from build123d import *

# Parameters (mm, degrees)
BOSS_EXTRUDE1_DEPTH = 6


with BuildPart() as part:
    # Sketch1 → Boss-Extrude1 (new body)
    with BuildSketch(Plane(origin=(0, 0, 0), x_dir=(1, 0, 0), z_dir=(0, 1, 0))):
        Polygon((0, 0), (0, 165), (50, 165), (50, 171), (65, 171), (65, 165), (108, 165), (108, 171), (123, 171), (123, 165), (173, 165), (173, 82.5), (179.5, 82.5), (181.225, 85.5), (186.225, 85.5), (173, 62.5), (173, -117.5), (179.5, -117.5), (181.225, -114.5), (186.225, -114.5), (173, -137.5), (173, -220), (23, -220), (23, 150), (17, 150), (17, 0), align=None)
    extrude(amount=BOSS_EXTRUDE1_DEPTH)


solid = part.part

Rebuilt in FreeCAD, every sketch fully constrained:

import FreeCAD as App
import Part
import Sketcher
Q = App.Units.Quantity

doc = App.newDocument("Part")
params = doc.addObject("Spreadsheet::Sheet", "Params")
for row, (alias, value) in enumerate([
    ("sketch1_width", "17 mm"),
    ("sketch1_width2", "6 mm"),
    ("sketch1_width3", "150 mm"),
    ("sketch1_width4", "5 mm"),
    ("sketch1_width5", "50 mm"),
    ("pad1_length", "6 mm"),
], start=1):
    params.set(f"A{row}", alias)
    params.set(f"B{row}", "=" + value)
    params.setAlias(f"B{row}", alias)

body = doc.addObject("PartDesign::Body", "Body")

sketch1 = body.newObject("Sketcher::SketchObject", "Sketch")
sketch1.AttachmentSupport = (doc.getObject("XZ_Plane"), [""])
sketch1.MapMode = "FlatFace"
sketch1.addGeometry([
    Part.LineSegment(App.Vector(0, -165, 0), App.Vector(0, 0, 0)),
    Part.LineSegment(App.Vector(0, 0, 0), App.Vector(17, 0, 0)),
    Part.LineSegment(App.Vector(17, 0, 0), App.Vector(17, -150, 0)),
    Part.LineSegment(App.Vector(17, -150, 0), App.Vector(23, -150, 0)),
    Part.LineSegment(App.Vector(23, -150, 0), App.Vector(23, 220, 0)),
    Part.LineSegment(App.Vector(23, 220, 0), App.Vector(173, 220, 0)),
    Part.LineSegment(App.Vector(173, 220, 0), App.Vector(173, 137.5, 0)),
    Part.LineSegment(App.Vector(173, 137.5, 0), App.Vector(186.225, 114.5, 0)),
    Part.LineSegment(App.Vector(186.225, 114.5, 0), App.Vector(181.225, 114.5, 0)),
    Part.LineSegment(App.Vector(181.225, 114.5, 0), App.Vector(179.5, 117.5, 0)),
    Part.LineSegment(App.Vector(179.5, 117.5, 0), App.Vector(173, 117.5, 0)),
    Part.LineSegment(App.Vector(173, 117.5, 0), App.Vector(173, -62.5, 0)),
    Part.LineSegment(App.Vector(173, -62.5, 0), App.Vector(186.225, -85.5, 0)),
    Part.LineSegment(App.Vector(186.225, -85.5, 0), App.Vector(181.225, -85.5, 0)),
    Part.LineSegment(App.Vector(181.225, -85.5, 0), App.Vector(179.5, -82.5, 0)),
    Part.LineSegment(App.Vector(179.5, -82.5, 0), App.Vector(173, -82.5, 0)),
    Part.LineSegment(App.Vector(173, -82.5, 0), App.Vector(173, -165, 0)),
    Part.LineSegment(App.Vector(173, -165, 0), App.Vector(123, -165, 0)),
    Part.LineSegment(App.Vector(123, -165, 0), App.Vector(123, -171, 0)),
    Part.LineSegment(App.Vector(123, -171, 0), App.Vector(108, -171, 0)),
    Part.LineSegment(App.Vector(108, -171, 0), App.Vector(108, -165, 0)),
    Part.LineSegment(App.Vector(108, -165, 0), App.Vector(65, -165, 0)),
    Part.LineSegment(App.Vector(65, -165, 0), App.Vector(65, -171, 0)),
    Part.LineSegment(App.Vector(65, -171, 0), App.Vector(50, -171, 0)),
    Part.LineSegment(App.Vector(50, -171, 0), App.Vector(50, -165, 0)),
    Part.LineSegment(App.Vector(50, -165, 0), App.Vector(0, -165, 0)),
], False)
sketch1.addConstraint([
    Sketcher.Constraint("Coincident", 0, 2, 1, 1),
    Sketcher.Constraint("Coincident", 1, 2, 2, 1),
    Sketcher.Constraint("Coincident", 2, 2, 3, 1),
    Sketcher.Constraint("Coincident", 3, 2, 4, 1),
    Sketcher.Constraint("Coincident", 4, 2, 5, 1),
    Sketcher.Constraint("Coincident", 5, 2, 6, 1),
    Sketcher.Constraint("Coincident", 6, 2, 7, 1),
    Sketcher.Constraint("Coincident", 7, 2, 8, 1),
    Sketcher.Constraint("Coincident", 8, 2, 9, 1),
    Sketcher.Constraint("Coincident", 9, 2, 10, 1),
    Sketcher.Constraint("Coincident", 10, 2, 11, 1),
    Sketcher.Constraint("Coincident", 11, 2, 12, 1),
    Sketcher.Constraint("Coincident", 12, 2, 13, 1),
    Sketcher.Constraint("Coincident", 13, 2, 14, 1),
    Sketcher.Constraint("Coincident", 14, 2, 15, 1),
    Sketcher.Constraint("Coincident", 15, 2, 16, 1),
    Sketcher.Constraint("Coincident", 16, 2, 17, 1),
    Sketcher.Constraint("Coincident", 17, 2, 18, 1),
    Sketcher.Constraint("Coincident", 18, 2, 19, 1),
    Sketcher.Constraint("Coincident", 19, 2, 20, 1),
    Sketcher.Constraint("Coincident", 20, 2, 21, 1),
    Sketcher.Constraint("Coincident", 21, 2, 22, 1),
    Sketcher.Constraint("Coincident", 22, 2, 23, 1),
    Sketcher.Constraint("Coincident", 23, 2, 24, 1),
    Sketcher.Constraint("Coincident", 24, 2, 25, 1),
    Sketcher.Constraint("Coincident", 25, 2, 0, 1),
    Sketcher.Constraint("Vertical", 0),
    Sketcher.Constraint("Horizontal", 1),
    Sketcher.Constraint("Vertical", 2),
    Sketcher.Constraint("Horizontal", 3),
    Sketcher.Constraint("Vertical", 4),
    Sketcher.Constraint("Horizontal", 5),
    Sketcher.Constraint("Vertical", 6),
    Sketcher.Constraint("Horizontal", 8),
    Sketcher.Constraint("Horizontal", 10),
    Sketcher.Constraint("Vertical", 11),
    Sketcher.Constraint("Horizontal", 13),
    Sketcher.Constraint("Horizontal", 15),
    Sketcher.Constraint("Vertical", 16),
    Sketcher.Constraint("Horizontal", 17),
    Sketcher.Constraint("Vertical", 18),
    Sketcher.Constraint("Horizontal", 19),
    Sketcher.Constraint("Vertical", 20),
    Sketcher.Constraint("Horizontal", 21),
    Sketcher.Constraint("Vertical", 22),
    Sketcher.Constraint("Horizontal", 23),
    Sketcher.Constraint("Vertical", 24),
    Sketcher.Constraint("Horizontal", 25),
    Sketcher.Constraint("Coincident", 0, 2, -1, 1),
    Sketcher.Constraint("Parallel", 7, 9),
    Sketcher.Constraint("Parallel", 9, 12),
    Sketcher.Constraint("Parallel", 12, 14),
    Sketcher.Constraint("Horizontal", 17, 2, 20, 2),
    Sketcher.Constraint("Horizontal", 19, 2, 22, 2),
    Sketcher.Constraint("Horizontal", 21, 2, 24, 2),
    Sketcher.Constraint("Vertical", 6, 2, 10, 2),
    Sketcher.Constraint("Vertical", 7, 2, 12, 2),
    Sketcher.Constraint("Vertical", 8, 2, 13, 2),
    Sketcher.Constraint("Vertical", 9, 2, 14, 2),
    Sketcher.Constraint("Vertical", 11, 2, 15, 2),
    Sketcher.Constraint("Equal", 19, 23),
    Sketcher.Constraint("Equal", 17, 25),
    Sketcher.Constraint("Equal", 5, 2),
    Sketcher.Constraint("Equal", 6, 16),
    Sketcher.Constraint("Equal", 3, 18),
    Sketcher.Constraint("DistanceX", 1, 1, 1, 2, Q("17 mm")),
    Sketcher.Constraint("DistanceX", 3, 1, 3, 2, Q("6 mm")),
    Sketcher.Constraint("DistanceX", 5, 1, 5, 2, Q("150 mm")),
    Sketcher.Constraint("DistanceX", 8, 2, 8, 1, Q("5 mm")),
    Sketcher.Constraint("DistanceX", 17, 2, 17, 1, Q("50 mm")),
    Sketcher.Constraint("DistanceX", 19, 2, 19, 1, Q("15 mm")),
    Sketcher.Constraint("DistanceY", 0, 1, 0, 2, Q("165 mm")),
    Sketcher.Constraint("DistanceY", 4, 1, 4, 2, Q("370 mm")),
    Sketcher.Constraint("DistanceY", 11, 2, 11, 1, Q("180 mm")),
    Sketcher.Constraint("DistanceX", 10, 2, 10, 1, Q("6.5 mm")),
    Sketcher.Constraint("DistanceY", 6, 2, 6, 1, Q("82.5 mm")),
    Sketcher.Constraint("DistanceY", 7, 2, 6, 2, Q("23 mm")),
])
sketch1.setExpression("Constraints[65]", "Params.sketch1_width")
sketch1.setExpression("Constraints[66]", "Params.sketch1_width2")
sketch1.setExpression("Constraints[67]", "Params.sketch1_width3")
sketch1.setExpression("Constraints[68]", "Params.sketch1_width4")
sketch1.setExpression("Constraints[69]", "Params.sketch1_width5")
pad1 = body.newObject("PartDesign::Pad", "Pad")
pad1.Profile = sketch1
pad1.setExpression("Length", "Params.pad1_length")
pad1.Reversed = True

doc.recompute()
